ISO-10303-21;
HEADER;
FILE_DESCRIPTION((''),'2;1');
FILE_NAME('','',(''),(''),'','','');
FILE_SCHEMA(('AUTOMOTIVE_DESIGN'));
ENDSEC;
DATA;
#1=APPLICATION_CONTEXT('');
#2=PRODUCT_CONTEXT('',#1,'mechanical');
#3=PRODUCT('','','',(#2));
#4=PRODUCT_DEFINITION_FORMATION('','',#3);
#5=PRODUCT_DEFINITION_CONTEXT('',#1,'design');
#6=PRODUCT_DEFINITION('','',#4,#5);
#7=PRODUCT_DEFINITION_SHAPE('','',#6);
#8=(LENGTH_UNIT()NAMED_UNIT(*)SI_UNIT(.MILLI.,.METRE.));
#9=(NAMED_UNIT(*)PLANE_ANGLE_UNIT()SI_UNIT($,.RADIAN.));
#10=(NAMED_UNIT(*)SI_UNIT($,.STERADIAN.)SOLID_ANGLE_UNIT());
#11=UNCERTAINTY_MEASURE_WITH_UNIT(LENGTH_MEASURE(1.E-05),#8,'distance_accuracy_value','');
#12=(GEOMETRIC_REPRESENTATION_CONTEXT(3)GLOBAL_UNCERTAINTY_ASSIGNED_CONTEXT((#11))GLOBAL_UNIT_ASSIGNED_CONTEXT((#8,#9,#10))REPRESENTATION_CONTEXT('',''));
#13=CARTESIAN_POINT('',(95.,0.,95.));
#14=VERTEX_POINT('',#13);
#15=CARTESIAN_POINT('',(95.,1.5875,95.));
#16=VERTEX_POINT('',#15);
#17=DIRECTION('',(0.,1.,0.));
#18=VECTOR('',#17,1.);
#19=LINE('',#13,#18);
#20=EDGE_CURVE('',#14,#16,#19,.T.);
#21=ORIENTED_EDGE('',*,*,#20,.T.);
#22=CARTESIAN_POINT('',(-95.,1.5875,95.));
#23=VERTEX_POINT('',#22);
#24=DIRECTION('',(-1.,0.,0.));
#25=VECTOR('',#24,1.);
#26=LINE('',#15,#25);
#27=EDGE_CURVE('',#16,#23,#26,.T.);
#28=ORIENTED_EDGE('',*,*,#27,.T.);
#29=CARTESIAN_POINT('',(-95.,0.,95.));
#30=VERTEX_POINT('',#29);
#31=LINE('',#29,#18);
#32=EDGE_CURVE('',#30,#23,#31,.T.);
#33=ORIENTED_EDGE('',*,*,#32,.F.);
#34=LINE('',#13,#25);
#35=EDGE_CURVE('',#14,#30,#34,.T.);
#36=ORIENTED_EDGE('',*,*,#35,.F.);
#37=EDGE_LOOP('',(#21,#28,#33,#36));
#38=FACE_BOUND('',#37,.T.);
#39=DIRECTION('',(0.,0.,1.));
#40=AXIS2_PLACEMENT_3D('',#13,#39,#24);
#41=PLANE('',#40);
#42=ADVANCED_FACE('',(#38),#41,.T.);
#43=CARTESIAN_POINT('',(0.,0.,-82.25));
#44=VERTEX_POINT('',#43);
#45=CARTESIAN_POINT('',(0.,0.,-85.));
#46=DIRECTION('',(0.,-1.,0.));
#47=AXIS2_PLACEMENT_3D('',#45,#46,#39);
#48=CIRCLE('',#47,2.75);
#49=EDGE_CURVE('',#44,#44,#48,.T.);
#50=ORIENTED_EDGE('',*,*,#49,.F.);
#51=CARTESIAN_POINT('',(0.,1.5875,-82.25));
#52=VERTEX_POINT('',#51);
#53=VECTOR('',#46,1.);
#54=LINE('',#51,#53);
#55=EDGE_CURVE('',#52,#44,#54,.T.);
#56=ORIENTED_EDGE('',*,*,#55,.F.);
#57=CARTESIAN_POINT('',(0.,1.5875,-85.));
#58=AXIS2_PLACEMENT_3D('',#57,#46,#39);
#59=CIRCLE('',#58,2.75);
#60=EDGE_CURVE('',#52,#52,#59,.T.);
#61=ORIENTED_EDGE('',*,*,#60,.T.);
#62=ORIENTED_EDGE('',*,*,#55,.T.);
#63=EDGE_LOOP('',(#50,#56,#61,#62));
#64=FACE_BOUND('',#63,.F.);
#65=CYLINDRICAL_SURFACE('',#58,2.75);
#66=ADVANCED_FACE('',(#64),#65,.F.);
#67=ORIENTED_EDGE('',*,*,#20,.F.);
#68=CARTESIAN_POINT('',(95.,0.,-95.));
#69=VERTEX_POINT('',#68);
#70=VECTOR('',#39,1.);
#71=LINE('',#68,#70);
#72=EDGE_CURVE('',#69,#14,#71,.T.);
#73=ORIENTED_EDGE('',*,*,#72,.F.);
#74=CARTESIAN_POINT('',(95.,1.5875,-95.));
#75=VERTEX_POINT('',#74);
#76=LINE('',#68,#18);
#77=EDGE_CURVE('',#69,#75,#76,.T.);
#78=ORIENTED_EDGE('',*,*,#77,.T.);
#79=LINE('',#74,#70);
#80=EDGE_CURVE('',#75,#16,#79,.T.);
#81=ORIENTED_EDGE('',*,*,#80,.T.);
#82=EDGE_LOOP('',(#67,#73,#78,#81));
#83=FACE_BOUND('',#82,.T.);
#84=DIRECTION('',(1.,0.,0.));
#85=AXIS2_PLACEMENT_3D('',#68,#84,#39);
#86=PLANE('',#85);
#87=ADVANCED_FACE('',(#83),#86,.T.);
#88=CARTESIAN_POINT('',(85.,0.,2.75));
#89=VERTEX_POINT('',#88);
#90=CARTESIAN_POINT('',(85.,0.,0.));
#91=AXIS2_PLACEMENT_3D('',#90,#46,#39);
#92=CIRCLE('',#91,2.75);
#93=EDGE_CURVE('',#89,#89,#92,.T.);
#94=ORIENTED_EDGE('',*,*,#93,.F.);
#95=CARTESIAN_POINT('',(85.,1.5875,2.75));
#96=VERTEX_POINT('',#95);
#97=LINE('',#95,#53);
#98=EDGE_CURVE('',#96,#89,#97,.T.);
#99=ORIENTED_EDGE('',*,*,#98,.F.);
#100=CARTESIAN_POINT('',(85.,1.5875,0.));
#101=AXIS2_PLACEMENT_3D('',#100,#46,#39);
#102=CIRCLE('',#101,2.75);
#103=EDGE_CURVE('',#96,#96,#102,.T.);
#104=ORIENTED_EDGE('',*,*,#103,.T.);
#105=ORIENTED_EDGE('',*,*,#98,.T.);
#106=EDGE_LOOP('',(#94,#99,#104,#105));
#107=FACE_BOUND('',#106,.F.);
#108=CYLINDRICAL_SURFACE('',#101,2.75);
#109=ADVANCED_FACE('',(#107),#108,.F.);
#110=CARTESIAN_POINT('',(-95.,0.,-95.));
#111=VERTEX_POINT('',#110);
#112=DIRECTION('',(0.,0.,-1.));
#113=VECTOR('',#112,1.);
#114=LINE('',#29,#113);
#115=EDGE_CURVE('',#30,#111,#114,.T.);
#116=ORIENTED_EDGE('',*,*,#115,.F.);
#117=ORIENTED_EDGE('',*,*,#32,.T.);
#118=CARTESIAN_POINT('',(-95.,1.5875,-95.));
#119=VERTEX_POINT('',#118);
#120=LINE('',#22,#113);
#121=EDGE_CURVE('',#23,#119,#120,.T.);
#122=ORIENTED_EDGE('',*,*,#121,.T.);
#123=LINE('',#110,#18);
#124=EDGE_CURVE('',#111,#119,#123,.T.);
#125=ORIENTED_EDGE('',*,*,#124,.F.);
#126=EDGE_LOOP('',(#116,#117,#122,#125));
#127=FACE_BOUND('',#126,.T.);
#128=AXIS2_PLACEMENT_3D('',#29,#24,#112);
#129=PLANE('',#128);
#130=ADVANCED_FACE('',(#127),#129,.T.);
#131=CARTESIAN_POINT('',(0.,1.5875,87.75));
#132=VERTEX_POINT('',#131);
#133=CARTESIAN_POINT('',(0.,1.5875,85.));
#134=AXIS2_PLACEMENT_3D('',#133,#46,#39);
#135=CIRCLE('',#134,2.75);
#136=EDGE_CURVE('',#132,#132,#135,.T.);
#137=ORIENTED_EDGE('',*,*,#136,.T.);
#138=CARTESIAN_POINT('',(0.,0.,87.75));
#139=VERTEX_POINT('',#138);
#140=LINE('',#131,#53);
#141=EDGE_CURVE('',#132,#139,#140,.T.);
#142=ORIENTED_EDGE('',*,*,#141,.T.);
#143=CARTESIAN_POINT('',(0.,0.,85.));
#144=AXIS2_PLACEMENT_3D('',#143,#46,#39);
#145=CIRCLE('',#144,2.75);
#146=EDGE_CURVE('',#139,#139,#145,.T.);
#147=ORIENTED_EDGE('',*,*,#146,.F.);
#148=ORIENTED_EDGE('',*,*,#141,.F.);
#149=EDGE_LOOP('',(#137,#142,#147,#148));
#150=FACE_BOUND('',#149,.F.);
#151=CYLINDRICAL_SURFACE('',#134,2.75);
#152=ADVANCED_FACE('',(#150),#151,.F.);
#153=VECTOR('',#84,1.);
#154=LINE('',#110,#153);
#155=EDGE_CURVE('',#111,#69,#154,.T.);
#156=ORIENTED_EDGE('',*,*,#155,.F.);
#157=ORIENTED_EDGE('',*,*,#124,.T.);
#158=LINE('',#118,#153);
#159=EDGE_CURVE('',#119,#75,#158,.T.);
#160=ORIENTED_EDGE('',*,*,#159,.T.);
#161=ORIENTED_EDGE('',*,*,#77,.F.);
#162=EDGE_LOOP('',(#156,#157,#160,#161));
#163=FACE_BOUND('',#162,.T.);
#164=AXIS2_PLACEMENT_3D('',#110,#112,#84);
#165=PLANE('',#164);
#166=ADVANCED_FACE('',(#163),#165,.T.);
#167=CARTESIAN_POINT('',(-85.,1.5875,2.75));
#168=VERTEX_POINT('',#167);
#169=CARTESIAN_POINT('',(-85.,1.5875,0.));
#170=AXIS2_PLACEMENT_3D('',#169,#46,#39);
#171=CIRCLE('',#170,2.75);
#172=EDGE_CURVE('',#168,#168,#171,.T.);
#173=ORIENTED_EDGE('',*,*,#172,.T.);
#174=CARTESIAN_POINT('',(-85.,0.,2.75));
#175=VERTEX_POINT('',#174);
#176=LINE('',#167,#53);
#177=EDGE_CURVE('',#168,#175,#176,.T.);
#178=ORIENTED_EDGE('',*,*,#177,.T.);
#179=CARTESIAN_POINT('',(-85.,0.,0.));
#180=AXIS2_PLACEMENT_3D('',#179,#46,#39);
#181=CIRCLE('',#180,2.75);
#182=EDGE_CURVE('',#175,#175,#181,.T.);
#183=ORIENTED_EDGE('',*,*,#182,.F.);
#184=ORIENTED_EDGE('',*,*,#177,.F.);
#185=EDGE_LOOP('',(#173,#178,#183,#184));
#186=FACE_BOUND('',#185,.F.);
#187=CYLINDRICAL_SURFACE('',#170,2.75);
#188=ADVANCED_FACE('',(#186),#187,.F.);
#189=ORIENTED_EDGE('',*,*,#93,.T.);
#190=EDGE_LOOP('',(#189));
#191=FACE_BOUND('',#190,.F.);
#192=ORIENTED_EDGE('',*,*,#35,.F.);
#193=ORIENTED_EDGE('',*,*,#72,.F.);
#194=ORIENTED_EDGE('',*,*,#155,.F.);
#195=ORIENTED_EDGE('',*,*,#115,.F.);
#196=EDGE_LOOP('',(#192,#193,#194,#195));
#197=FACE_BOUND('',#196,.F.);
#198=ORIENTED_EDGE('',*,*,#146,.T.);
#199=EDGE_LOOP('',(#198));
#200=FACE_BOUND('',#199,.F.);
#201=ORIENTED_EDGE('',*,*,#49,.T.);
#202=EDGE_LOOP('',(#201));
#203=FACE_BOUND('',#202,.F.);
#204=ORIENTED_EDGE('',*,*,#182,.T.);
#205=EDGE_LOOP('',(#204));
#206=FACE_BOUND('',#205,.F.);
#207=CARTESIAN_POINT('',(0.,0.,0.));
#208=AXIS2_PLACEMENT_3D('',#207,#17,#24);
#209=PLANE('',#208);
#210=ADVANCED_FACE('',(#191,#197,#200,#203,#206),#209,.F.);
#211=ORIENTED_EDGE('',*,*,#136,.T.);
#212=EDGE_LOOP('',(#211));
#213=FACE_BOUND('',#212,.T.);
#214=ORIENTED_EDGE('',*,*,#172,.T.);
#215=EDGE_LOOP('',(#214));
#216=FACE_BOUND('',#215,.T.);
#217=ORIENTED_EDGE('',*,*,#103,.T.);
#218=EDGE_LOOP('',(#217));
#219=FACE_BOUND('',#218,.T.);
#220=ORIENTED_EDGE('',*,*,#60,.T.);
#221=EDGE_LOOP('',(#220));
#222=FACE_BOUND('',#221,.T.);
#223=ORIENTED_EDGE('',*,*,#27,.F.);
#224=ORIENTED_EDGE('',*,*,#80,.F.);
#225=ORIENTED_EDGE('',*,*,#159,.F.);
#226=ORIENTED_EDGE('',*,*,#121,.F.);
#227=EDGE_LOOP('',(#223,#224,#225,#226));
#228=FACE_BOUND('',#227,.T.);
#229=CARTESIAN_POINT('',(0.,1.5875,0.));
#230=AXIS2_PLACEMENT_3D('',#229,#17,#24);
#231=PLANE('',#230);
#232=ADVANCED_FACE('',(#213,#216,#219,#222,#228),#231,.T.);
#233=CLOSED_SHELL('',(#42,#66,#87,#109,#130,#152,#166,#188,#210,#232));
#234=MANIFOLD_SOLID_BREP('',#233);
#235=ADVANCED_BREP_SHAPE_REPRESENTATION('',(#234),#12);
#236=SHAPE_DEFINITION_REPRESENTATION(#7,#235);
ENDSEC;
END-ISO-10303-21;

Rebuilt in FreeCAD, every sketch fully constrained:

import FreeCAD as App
import Part
import Sketcher

V = App.Vector

doc = App.newDocument("Part")
params = doc.addObject("Spreadsheet::Sheet", "Params")
for row, (alias, value) in enumerate([
    ("sketch1_width", "190 mm"),
    ("pad1_length", "1.5875 mm"),
    ("sketch2_diameter", "5.5 mm"),
    ("hole_diameter", "5.5 mm"),
], start=1):
    params.set(f"A{row}", alias)
    params.set(f"B{row}", "=" + value)
    params.setAlias(f"B{row}", alias)

body = doc.addObject("PartDesign::Body", "Body")

sketch1 = doc.addObject("Sketcher::SketchObject", "Sketch")
body.addObject(sketch1)
sketch1.AttachmentSupport = (doc.XZ_Plane, [""])
sketch1.MapMode = "FlatFace"
sketch1.addGeometry(Part.LineSegment(V(95, -95, 0), V(-95, -95, 0)), False)
sketch1.addGeometry(Part.LineSegment(V(-95, -95, 0), V(-95, 95, 0)), False)
sketch1.addGeometry(Part.LineSegment(V(-95, 95, 0), V(95, 95, 0)), False)
sketch1.addGeometry(Part.LineSegment(V(95, 95, 0), V(95, -95, 0)), False)
sketch1.addConstraint(Sketcher.Constraint("Coincident", 0, 2, 1, 1))
sketch1.addConstraint(Sketcher.Constraint("Coincident", 1, 2, 2, 1))
sketch1.addConstraint(Sketcher.Constraint("Coincident", 2, 2, 3, 1))
sketch1.addConstraint(Sketcher.Constraint("Coincident", 3, 2, 0, 1))
sketch1.addConstraint(Sketcher.Constraint("Horizontal", 0))
sketch1.addConstraint(Sketcher.Constraint("Vertical", 1))
sketch1.addConstraint(Sketcher.Constraint("Horizontal", 2))
sketch1.addConstraint(Sketcher.Constraint("Vertical", 3))
sketch1.addConstraint(Sketcher.Constraint("Symmetric", 0, 2, 2, 2, -1, 1))
sketch1.addConstraint(Sketcher.Constraint("Equal", 2, 1))
sketch1.addConstraint(Sketcher.Constraint("DistanceX", 0, 2, 0, 1, 190.0))
sketch1.setExpression("Constraints[10]", "Params.sketch1_width")
pad1 = doc.addObject("PartDesign::Pad", "Pad")
body.addObject(pad1)
pad1.Profile = sketch1
pad1.setExpression("Length", "Params.pad1_length")
pad1.Reversed = True

sketch2 = doc.addObject("Sketcher::SketchObject", "Sketch001")
body.addObject(sketch2)
sketch2.AttachmentSupport = (doc.XZ_Plane, [""])
sketch2.MapMode = "FlatFace"
sketch2.AttachmentOffset = App.Placement(V(0, 0, -1.5875), App.Rotation())
sketch2.addGeometry(Part.Circle(V(-85, 0, 0), V(0, 0, 1), 2.8), False)
sketch2.addGeometry(Part.Circle(V(0, 85, 0), V(0, 0, 1), 2.8), False)
sketch2.addGeometry(Part.Circle(V(85, 0, 0), V(0, 0, 1), 2.8), False)
sketch2.addGeometry(Part.Circle(V(0, -85, 0), V(0, 0, 1), 2.8), False)
sketch2.addConstraint(Sketcher.Constraint("Equal", 0, 1))
sketch2.addConstraint(Sketcher.Constraint("Equal", 1, 2))
sketch2.addConstraint(Sketcher.Constraint("Equal", 2, 3))
sketch2.addConstraint(Sketcher.Constraint("Symmetric", 0, 3, 2, 3, -1, 1))
sketch2.addConstraint(Sketcher.Constraint("Symmetric", 1, 3, 3, 3, -1, 1))
sketch2.addConstraint(Sketcher.Constraint("PointOnObject", 0, 3, -1))
sketch2.addConstraint(Sketcher.Constraint("PointOnObject", 1, 3, -2))
sketch2.addConstraint(Sketcher.Constraint("Diameter", 0, 5.5))
sketch2.addConstraint(Sketcher.Constraint("DistanceX", 0, 3, -1, 1, 85.0))
sketch2.addConstraint(Sketcher.Constraint("DistanceY", -1, 1, 1, 3, 85.0))
sketch2.setExpression("Constraints[7]", "Params.sketch2_diameter")
doc.recompute()
hole = doc.addObject("PartDesign::Hole", "Hole")
body.addObject(hole)
hole.Profile = sketch2
hole.ThreadType = "None"
hole.setExpression("Diameter", "Params.hole_diameter")
hole.DepthType = "ThroughAll"
hole.Reversed = True

doc.recompute()
